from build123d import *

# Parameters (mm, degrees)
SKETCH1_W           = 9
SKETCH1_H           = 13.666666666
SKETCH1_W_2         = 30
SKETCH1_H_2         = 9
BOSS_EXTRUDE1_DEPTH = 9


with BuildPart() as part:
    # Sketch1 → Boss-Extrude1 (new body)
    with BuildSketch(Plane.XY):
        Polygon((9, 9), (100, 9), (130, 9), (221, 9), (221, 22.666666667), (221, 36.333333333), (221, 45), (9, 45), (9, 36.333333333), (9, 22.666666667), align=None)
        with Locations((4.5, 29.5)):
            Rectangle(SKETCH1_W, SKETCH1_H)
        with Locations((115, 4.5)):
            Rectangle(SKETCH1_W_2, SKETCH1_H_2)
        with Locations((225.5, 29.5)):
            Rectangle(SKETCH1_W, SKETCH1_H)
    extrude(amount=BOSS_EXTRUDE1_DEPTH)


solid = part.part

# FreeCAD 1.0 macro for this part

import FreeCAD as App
import Part
import Sketcher
Q = App.Units.Quantity

doc = App.newDocument("Part")
body = doc.addObject("PartDesign::Body", "Body")

sketch1 = body.newObject("Sketcher::SketchObject", "Sketch")
sketch1.AttachmentSupport = (doc.getObject("XY_Plane"), [""])
sketch1.MapMode = "FlatFace"
sketch1.addGeometry(Part.LineSegment(App.Vector(9, 9, 0), App.Vector(100, 9, 0)), False)
sketch1.addGeometry(Part.LineSegment(App.Vector(100, 9, 0), App.Vector(100, 0, 0)), False)
sketch1.addGeometry(Part.LineSegment(App.Vector(100, 0, 0), App.Vector(130, 0, 0)), False)
sketch1.addGeometry(Part.LineSegment(App.Vector(130, 0, 0), App.Vector(130, 9, 0)), False)
sketch1.addGeometry(Part.LineSegment(App.Vector(130, 9, 0), App.Vector(221, 9, 0)), False)
sketch1.addGeometry(Part.LineSegment(App.Vector(221, 9, 0), App.Vector(221, 23, 0)), False)
sketch1.addGeometry(Part.LineSegment(App.Vector(221, 23, 0), App.Vector(230, 23, 0)), False)
sketch1.addGeometry(Part.LineSegment(App.Vector(230, 23, 0), App.Vector(230, 36, 0)), False)
sketch1.addGeometry(Part.LineSegment(App.Vector(230, 36, 0), App.Vector(221, 36, 0)), False)
sketch1.addGeometry(Part.LineSegment(App.Vector(221, 36, 0), App.Vector(221, 45, 0)), False)
sketch1.addGeometry(Part.LineSegment(App.Vector(221, 45, 0), App.Vector(9, 45, 0)), False)
sketch1.addGeometry(Part.LineSegment(App.Vector(9, 45, 0), App.Vector(9, 36, 0)), False)
sketch1.addGeometry(Part.LineSegment(App.Vector(9, 36, 0), App.Vector(0, 36, 0)), False)
sketch1.addGeometry(Part.LineSegment(App.Vector(0, 36, 0), App.Vector(0, 23, 0)), False)
sketch1.addGeometry(Part.LineSegment(App.Vector(0, 23, 0), App.Vector(9, 23, 0)), False)
sketch1.addGeometry(Part.LineSegment(App.Vector(9, 23, 0), App.Vector(9, 9, 0)), False)
sketch1.addConstraint(Sketcher.Constraint("Coincident", 0, 2, 1, 1))
sketch1.addConstraint(Sketcher.Constraint("Coincident", 1, 2, 2, 1))
sketch1.addConstraint(Sketcher.Constraint("Coincident", 2, 2, 3, 1))
sketch1.addConstraint(Sketcher.Constraint("Coincident", 3, 2, 4, 1))
sketch1.addConstraint(Sketcher.Constraint("Coincident", 4, 2, 5, 1))
sketch1.addConstraint(Sketcher.Constraint("Coincident", 5, 2, 6, 1))
sketch1.addConstraint(Sketcher.Constraint("Coincident", 6, 2, 7, 1))
sketch1.addConstraint(Sketcher.Constraint("Coincident", 7, 2, 8, 1))
sketch1.addConstraint(Sketcher.Constraint("Coincident", 8, 2, 9, 1))
sketch1.addConstraint(Sketcher.Constraint("Coincident", 9, 2, 10, 1))
sketch1.addConstraint(Sketcher.Constraint("Coincident", 10, 2, 11, 1))
sketch1.addConstraint(Sketcher.Constraint("Coincident", 11, 2, 12, 1))
sketch1.addConstraint(Sketcher.Constraint("Coincident", 12, 2, 13, 1))
sketch1.addConstraint(Sketcher.Constraint("Coincident", 13, 2, 14, 1))
sketch1.addConstraint(Sketcher.Constraint("Coincident", 14, 2, 15, 1))
sketch1.addConstraint(Sketcher.Constraint("Coincident", 15, 2, 0, 1))
sketch1.addConstraint(Sketcher.Constraint("Horizontal", 0))
sketch1.addConstraint(Sketcher.Constraint("Vertical", 1))
sketch1.addConstraint(Sketcher.Constraint("Horizontal", 2))
sketch1.addConstraint(Sketcher.Constraint("Vertical", 3))
sketch1.addConstraint(Sketcher.Constraint("Horizontal", 4))
sketch1.addConstraint(Sketcher.Constraint("Vertical", 5))
sketch1.addConstraint(Sketcher.Constraint("Horizontal", 6))
sketch1.addConstraint(Sketcher.Constraint("Vertical", 7))
sketch1.addConstraint(Sketcher.Constraint("Horizontal", 8))
sketch1.addConstraint(Sketcher.Constraint("Vertical", 9))
sketch1.addConstraint(Sketcher.Constraint("Horizontal", 10))
sketch1.addConstraint(Sketcher.Constraint("Vertical", 11))
sketch1.addConstraint(Sketcher.Constraint("Horizontal", 12))
sketch1.addConstraint(Sketcher.Constraint("Vertical", 13))
sketch1.addConstraint(Sketcher.Constraint("Horizontal", 14))
sketch1.addConstraint(Sketcher.Constraint("Vertical", 15))
sketch1.addConstraint(Sketcher.Constraint("PointOnObject", 1, 2, -1))
sketch1.addConstraint(Sketcher.Constraint("PointOnObject", 12, 2, -2))
sketch1.addConstraint(Sketcher.Constraint("Horizontal", 0, 2, 3, 2))
sketch1.addConstraint(Sketcher.Constraint("Horizontal", 8, 2, 11, 2))
sketch1.addConstraint(Sketcher.Constraint("Horizontal", 6, 2, 13, 2))
sketch1.addConstraint(Sketcher.Constraint("Vertical", 5, 2, 8, 2))
sketch1.addConstraint(Sketcher.Constraint("Vertical", 11, 2, 14, 2))
sketch1.addConstraint(Sketcher.Constraint("Equal", 0, 4))
sketch1.addConstraint(Sketcher.Constraint("Equal", 8, 12))
sketch1.addConstraint(Sketcher.Constraint("Equal", 14, 1))
sketch1.addConstraint(Sketcher.Constraint("Equal", 5, 7))
sketch1.addConstraint(Sketcher.Constraint("DistanceX", 0, 1, 0, 2, Q("91 mm")))
sketch1.addConstraint(Sketcher.Constraint("DistanceX", 2, 1, 2, 2, Q("30 mm")))
sketch1.addConstraint(Sketcher.Constraint("DistanceX", 6, 1, 6, 2, Q("9 mm")))
sketch1.addConstraint(Sketcher.Constraint("DistanceY", -1, 1, 9, 2, Q("45 mm")))
sketch1.addConstraint(Sketcher.Constraint("DistanceY", 5, 1, 5, 2, Q("13.666667 mm")))
pad1 = body.newObject("PartDesign::Pad", "Pad")
pad1.Profile = sketch1
pad1.Length = 9

doc.recompute()
